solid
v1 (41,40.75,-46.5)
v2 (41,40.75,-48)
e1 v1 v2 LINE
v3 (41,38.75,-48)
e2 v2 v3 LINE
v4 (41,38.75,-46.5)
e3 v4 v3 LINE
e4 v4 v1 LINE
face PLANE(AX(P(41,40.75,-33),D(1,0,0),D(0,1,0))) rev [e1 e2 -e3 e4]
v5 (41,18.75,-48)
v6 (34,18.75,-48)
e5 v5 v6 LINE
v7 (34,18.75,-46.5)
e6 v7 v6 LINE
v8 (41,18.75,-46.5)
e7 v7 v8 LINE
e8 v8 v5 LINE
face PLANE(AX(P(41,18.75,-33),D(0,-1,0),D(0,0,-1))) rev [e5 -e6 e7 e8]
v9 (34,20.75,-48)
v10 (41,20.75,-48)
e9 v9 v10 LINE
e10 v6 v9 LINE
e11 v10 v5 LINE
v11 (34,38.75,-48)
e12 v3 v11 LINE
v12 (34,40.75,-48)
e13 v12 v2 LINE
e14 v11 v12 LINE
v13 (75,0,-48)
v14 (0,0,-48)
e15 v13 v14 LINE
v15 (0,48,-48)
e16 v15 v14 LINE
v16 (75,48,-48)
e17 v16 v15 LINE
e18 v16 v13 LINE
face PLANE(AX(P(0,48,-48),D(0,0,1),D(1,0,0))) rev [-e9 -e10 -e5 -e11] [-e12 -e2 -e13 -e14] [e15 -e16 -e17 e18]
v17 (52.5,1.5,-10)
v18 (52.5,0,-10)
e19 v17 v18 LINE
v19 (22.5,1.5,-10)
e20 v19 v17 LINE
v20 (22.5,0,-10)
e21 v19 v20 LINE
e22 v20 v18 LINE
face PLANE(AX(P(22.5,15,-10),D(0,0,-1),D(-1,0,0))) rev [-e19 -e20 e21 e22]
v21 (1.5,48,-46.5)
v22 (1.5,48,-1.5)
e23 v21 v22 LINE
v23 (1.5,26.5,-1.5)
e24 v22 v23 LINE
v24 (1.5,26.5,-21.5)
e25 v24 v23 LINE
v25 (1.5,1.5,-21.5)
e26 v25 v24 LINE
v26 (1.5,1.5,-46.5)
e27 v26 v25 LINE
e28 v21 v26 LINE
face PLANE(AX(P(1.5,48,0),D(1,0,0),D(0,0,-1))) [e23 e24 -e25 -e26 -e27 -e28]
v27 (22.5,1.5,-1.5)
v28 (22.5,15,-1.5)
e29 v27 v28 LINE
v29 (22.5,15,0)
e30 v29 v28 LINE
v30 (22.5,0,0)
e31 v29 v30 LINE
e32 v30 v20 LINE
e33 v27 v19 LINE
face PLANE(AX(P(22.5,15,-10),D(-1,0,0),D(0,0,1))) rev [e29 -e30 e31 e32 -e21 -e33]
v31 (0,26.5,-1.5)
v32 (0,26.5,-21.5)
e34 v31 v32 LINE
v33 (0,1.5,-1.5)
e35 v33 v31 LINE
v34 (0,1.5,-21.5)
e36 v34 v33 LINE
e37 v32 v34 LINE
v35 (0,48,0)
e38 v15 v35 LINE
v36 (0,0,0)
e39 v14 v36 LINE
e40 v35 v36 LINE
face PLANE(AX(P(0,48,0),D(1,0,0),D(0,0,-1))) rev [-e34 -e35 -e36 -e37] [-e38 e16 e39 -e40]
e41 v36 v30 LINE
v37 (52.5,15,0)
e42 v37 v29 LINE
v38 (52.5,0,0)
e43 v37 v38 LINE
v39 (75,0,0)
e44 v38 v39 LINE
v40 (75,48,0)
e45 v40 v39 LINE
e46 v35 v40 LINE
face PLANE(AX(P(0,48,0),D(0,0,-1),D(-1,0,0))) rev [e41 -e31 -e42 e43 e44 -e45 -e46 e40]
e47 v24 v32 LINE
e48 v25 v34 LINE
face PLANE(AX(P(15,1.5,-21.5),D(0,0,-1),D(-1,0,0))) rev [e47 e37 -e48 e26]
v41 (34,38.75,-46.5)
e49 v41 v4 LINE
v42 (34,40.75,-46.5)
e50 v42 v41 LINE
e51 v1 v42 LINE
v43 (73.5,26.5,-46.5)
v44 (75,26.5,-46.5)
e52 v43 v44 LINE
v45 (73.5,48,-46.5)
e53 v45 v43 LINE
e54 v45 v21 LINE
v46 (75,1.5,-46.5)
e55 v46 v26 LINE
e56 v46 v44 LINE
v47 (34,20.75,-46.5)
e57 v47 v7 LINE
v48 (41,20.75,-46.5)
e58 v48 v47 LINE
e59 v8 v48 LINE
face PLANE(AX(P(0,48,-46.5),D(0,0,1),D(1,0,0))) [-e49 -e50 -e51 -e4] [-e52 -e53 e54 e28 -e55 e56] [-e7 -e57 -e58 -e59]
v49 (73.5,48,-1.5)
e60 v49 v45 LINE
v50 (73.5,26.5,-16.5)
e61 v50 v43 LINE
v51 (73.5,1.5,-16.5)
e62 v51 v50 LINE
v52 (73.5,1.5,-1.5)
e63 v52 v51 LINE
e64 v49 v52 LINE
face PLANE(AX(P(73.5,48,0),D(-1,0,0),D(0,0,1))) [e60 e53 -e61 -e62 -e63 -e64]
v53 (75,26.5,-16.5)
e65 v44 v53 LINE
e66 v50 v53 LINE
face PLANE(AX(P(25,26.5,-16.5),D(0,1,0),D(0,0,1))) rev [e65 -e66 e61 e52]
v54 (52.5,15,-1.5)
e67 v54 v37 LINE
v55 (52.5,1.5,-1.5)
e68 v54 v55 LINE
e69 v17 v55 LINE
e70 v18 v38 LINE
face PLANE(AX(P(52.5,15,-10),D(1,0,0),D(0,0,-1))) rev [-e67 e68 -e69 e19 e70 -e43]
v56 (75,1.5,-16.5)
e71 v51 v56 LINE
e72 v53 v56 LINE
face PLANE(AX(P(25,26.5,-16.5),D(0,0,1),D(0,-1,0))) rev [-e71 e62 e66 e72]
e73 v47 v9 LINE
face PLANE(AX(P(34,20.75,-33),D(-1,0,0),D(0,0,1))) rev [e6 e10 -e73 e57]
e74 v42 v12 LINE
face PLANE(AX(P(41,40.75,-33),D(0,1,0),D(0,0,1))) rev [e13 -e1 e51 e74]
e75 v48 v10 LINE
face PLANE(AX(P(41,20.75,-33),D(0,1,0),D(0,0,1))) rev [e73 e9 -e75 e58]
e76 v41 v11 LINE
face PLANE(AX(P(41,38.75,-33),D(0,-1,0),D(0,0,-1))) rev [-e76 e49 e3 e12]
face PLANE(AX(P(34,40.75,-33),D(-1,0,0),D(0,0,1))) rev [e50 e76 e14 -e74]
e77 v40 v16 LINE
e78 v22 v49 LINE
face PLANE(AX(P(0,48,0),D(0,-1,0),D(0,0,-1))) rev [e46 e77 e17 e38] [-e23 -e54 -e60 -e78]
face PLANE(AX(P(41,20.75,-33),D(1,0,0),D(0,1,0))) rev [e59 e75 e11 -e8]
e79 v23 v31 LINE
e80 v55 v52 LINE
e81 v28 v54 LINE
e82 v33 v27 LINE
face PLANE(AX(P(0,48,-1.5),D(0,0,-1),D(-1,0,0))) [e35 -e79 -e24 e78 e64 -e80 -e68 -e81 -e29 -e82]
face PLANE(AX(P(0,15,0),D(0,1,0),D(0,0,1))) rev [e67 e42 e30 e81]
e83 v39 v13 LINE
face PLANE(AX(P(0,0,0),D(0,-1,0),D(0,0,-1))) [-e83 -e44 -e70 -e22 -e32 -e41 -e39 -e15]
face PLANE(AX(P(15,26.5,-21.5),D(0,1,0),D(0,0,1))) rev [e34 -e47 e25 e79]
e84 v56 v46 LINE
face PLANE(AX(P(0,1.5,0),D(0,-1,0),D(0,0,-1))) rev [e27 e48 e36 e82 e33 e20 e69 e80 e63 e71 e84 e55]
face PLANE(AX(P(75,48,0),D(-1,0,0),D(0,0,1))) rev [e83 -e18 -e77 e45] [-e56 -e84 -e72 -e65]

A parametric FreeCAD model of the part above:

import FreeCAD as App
import Part
import Sketcher
from FreeCAD import Vector


def faces_at(feature, points):
    """Names of the faces that lie closest to the given points."""
    faces = feature.Shape.Faces
    near = lambda p: min(range(len(faces)), key=lambda i: faces[i].distToShape(Part.Vertex(*p))[0])
    return sorted({f"Face{near(p) + 1}" for p in points})

doc = App.newDocument("Part")
body = doc.addObject("PartDesign::Body", "Body")

sketch1 = body.newObject("Sketcher::SketchObject", "Sketch")
sketch1.AttachmentSupport = (doc.getObject("XZ_Plane"), [""])
sketch1.MapMode = "FlatFace"
sketch1.addGeometry(Part.LineSegment(Vector(0, -48, 0), Vector(0, 0, 0)), False)
sketch1.addGeometry(Part.LineSegment(Vector(0, 0, 0), Vector(75, 0, 0)), False)
sketch1.addGeometry(Part.LineSegment(Vector(75, 0, 0), Vector(75, -48, 0)), False)
sketch1.addGeometry(Part.LineSegment(Vector(75, -48, 0), Vector(0, -48, 0)), False)
sketch1.addConstraint(Sketcher.Constraint("Coincident", 0, 2, 1, 1))
sketch1.addConstraint(Sketcher.Constraint("Coincident", 1, 2, 2, 1))
sketch1.addConstraint(Sketcher.Constraint("Coincident", 2, 2, 3, 1))
sketch1.addConstraint(Sketcher.Constraint("Coincident", 3, 2, 0, 1))
sketch1.addConstraint(Sketcher.Constraint("Vertical", 0))
sketch1.addConstraint(Sketcher.Constraint("Horizontal", 1))
sketch1.addConstraint(Sketcher.Constraint("Vertical", 2))
sketch1.addConstraint(Sketcher.Constraint("Horizontal", 3))
sketch1.addConstraint(Sketcher.Constraint("Coincident", 0, 2, -1, 1))
sketch1.addConstraint(Sketcher.Constraint("DistanceX", 1, 1, 1, 2, 75.0))
sketch1.addConstraint(Sketcher.Constraint("DistanceY", 0, 1, 0, 2, 48.0))
pad1 = body.newObject("PartDesign::Pad", "Pad")
pad1.Profile = sketch1
pad1.Length = 48
pad1.Reversed = True
doc.recompute()

thickness = body.newObject("PartDesign::Thickness", "Thickness")
thickness.Base = (pad1, faces_at(pad1, [(37.5, 48, -24)]))
thickness.Value = 1.5
thickness.Reversed = True
thickness.Join = "Intersection"

sketch2 = body.newObject("Sketcher::SketchObject", "Sketch001")
sketch2.AttachmentSupport = (doc.getObject("YZ_Plane"), [""])
sketch2.MapMode = "FlatFace"
sketch2.AttachmentOffset = App.Placement(Vector(0, 0, 75), App.Rotation())
sketch2.addGeometry(Part.LineSegment(Vector(26, -16, 0), Vector(2, -16, 0)), False)
sketch2.addGeometry(Part.LineSegment(Vector(2, -16, 0), Vector(2, -46, 0)), False)
sketch2.addGeometry(Part.LineSegment(Vector(2, -46, 0), Vector(26, -46, 0)), False)
sketch2.addGeometry(Part.LineSegment(Vector(26, -46, 0), Vector(26, -16, 0)), False)
sketch2.addConstraint(Sketcher.Constraint("Coincident", 0, 2, 1, 1))
sketch2.addConstraint(Sketcher.Constraint("Coincident", 1, 2, 2, 1))
sketch2.addConstraint(Sketcher.Constraint("Coincident", 2, 2, 3, 1))
sketch2.addConstraint(Sketcher.Constraint("Coincident", 3, 2, 0, 1))
sketch2.addConstraint(Sketcher.Constraint("Horizontal", 0))
sketch2.addConstraint(Sketcher.Constraint("Vertical", 1))
sketch2.addConstraint(Sketcher.Constraint("Horizontal", 2))
sketch2.addConstraint(Sketcher.Constraint("Vertical", 3))
sketch2.addConstraint(Sketcher.Constraint("DistanceX", 0, 2, 0, 1, 25.0))
sketch2.addConstraint(Sketcher.Constraint("DistanceY", 1, 2, 1, 1, 30.0))
sketch2.addConstraint(Sketcher.Constraint("DistanceX", -1, 1, 0, 2, 1.5))
sketch2.addConstraint(Sketcher.Constraint("DistanceY", 0, 2, -1, 1, 16.5))
pocket1 = body.newObject("PartDesign::Pocket", "Pocket")
pocket1.Profile = sketch2
pocket1.Length = 50

sketch3 = body.newObject("Sketcher::SketchObject", "Sketch002")
sketch3.AttachmentSupport = (doc.getObject("XZ_Plane"), [""])
sketch3.MapMode = "FlatFace"
sketch3.addGeometry(Part.LineSegment(Vector(22, 0, 0), Vector(22, -10, 0)), False)
sketch3.addGeometry(Part.LineSegment(Vector(22, -10, 0), Vector(52, -10, 0)), False)
sketch3.addGeometry(Part.LineSegment(Vector(52, -10, 0), Vector(52, 0, 0)), False)
sketch3.addGeometry(Part.LineSegment(Vector(52, 0, 0), Vector(22, 0, 0)), False)
sketch3.addConstraint(Sketcher.Constraint("Coincident", 0, 2, 1, 1))
sketch3.addConstraint(Sketcher.Constraint("Coincident", 1, 2, 2, 1))
sketch3.addConstraint(Sketcher.Constraint("Coincident", 2, 2, 3, 1))
sketch3.addConstraint(Sketcher.Constraint("Coincident", 3, 2, 0, 1))
sketch3.addConstraint(Sketcher.Constraint("Vertical", 0))
sketch3.addConstraint(Sketcher.Constraint("Horizontal", 1))
sketch3.addConstraint(Sketcher.Constraint("Vertical", 2))
sketch3.addConstraint(Sketcher.Constraint("Horizontal", 3))
sketch3.addConstraint(Sketcher.Constraint("PointOnObject", 2, 2, -1))
sketch3.addConstraint(Sketcher.Constraint("DistanceX", 1, 1, 1, 2, 30.0))
sketch3.addConstraint(Sketcher.Constraint("DistanceY", 0, 2, 0, 1, 10.0))
sketch3.addConstraint(Sketcher.Constraint("DistanceX", -1, 1, 0, 2, 22.5))
pocket2 = body.newObject("PartDesign::Pocket", "Pocket001")
pocket2.Profile = sketch3
pocket2.Length = 15

sketch4 = body.newObject("Sketcher::SketchObject", "Sketch003")
sketch4.AttachmentSupport = (doc.getObject("YZ_Plane"), [""])
sketch4.MapMode = "FlatFace"
sketch4.addGeometry(Part.LineSegment(Vector(26, -22, 0), Vector(2, -22, 0)), False)
sketch4.addGeometry(Part.LineSegment(Vector(2, -22, 0), Vector(2, -2, 0)), False)
sketch4.addGeometry(Part.LineSegment(Vector(2, -2, 0), Vector(26, -2, 0)), False)
sketch4.addGeometry(Part.LineSegment(Vector(26, -2, 0), Vector(26, -22, 0)), False)
sketch4.addConstraint(Sketcher.Constraint("Coincident", 0, 2, 1, 1))
sketch4.addConstraint(Sketcher.Constraint("Coincident", 1, 2, 2, 1))
sketch4.addConstraint(Sketcher.Constraint("Coincident", 2, 2, 3, 1))
sketch4.addConstraint(Sketcher.Constraint("Coincident", 3, 2, 0, 1))
sketch4.addConstraint(Sketcher.Constraint("Horizontal", 0))
sketch4.addConstraint(Sketcher.Constraint("Vertical", 1))
sketch4.addConstraint(Sketcher.Constraint("Horizontal", 2))
sketch4.addConstraint(Sketcher.Constraint("Vertical", 3))
sketch4.addConstraint(Sketcher.Constraint("DistanceX", 0, 2, 0, 1, 25.0))
sketch4.addConstraint(Sketcher.Constraint("DistanceY", 1, 1, 1, 2, 20.0))
sketch4.addConstraint(Sketcher.Constraint("DistanceX", -1, 1, 0, 2, 1.5))
sketch4.addConstraint(Sketcher.Constraint("DistanceY", 0, 2, -1, 1, 21.5))
pocket3 = body.newObject("PartDesign::Pocket", "Pocket002")
pocket3.Profile = sketch4
pocket3.Length = 15
pocket3.Reversed = True

sketch5 = body.newObject("Sketcher::SketchObject", "Sketch004")
sketch5.AttachmentSupport = (doc.getObject("XY_Plane"), [""])
sketch5.MapMode = "FlatFace"
sketch5.AttachmentOffset = App.Placement(Vector(0, 0, -48), App.Rotation())
sketch5.addGeometry(Part.LineSegment(Vector(41, 20.8, 0), Vector(41, 18.8, 0)), False)
sketch5.addGeometry(Part.LineSegment(Vector(41, 18.8, 0), Vector(34, 18.8, 0)), False)
sketch5.addGeometry(Part.LineSegment(Vector(34, 18.8, 0), Vector(34, 20.8, 0)), False)
sketch5.addGeometry(Part.LineSegment(Vector(34, 20.8, 0), Vector(41, 20.8, 0)), False)
sketch5.addGeometry(Part.LineSegment(Vector(41, 40.8, 0), Vector(41, 38.8, 0)), False)
sketch5.addGeometry(Part.LineSegment(Vector(41, 38.8, 0), Vector(34, 38.8, 0)), False)
sketch5.addGeometry(Part.LineSegment(Vector(34, 38.8, 0), Vector(34, 40.8, 0)), False)
sketch5.addGeometry(Part.LineSegment(Vector(34, 40.8, 0), Vector(41, 40.8, 0)), False)
sketch5.addConstraint(Sketcher.Constraint("Coincident", 0, 2, 1, 1))
sketch5.addConstraint(Sketcher.Constraint("Coincident", 1, 2, 2, 1))
sketch5.addConstraint(Sketcher.Constraint("Coincident", 2, 2, 3, 1))
sketch5.addConstraint(Sketcher.Constraint("Coincident", 3, 2, 0, 1))
sketch5.addConstraint(Sketcher.Constraint("Coincident", 4, 2, 5, 1))
sketch5.addConstraint(Sketcher.Constraint("Coincident", 5, 2, 6, 1))
sketch5.addConstraint(Sketcher.Constraint("Coincident", 6, 2, 7, 1))
sketch5.addConstraint(Sketcher.Constraint("Coincident", 7, 2, 4, 1))
sketch5.addConstraint(Sketcher.Constraint("Vertical", 0))
sketch5.addConstraint(Sketcher.Constraint("Horizontal", 1))
sketch5.addConstraint(Sketcher.Constraint("Vertical", 2))
sketch5.addConstraint(Sketcher.Constraint("Horizontal", 3))
sketch5.addConstraint(Sketcher.Constraint("Vertical", 4))
sketch5.addConstraint(Sketcher.Constraint("Horizontal", 5))
sketch5.addConstraint(Sketcher.Constraint("Vertical", 6))
sketch5.addConstraint(Sketcher.Constraint("Horizontal", 7))
sketch5.addConstraint(Sketcher.Constraint("Vertical", 3, 2, 4, 2))
sketch5.addConstraint(Sketcher.Constraint("Vertical", 2, 2, 5, 2))
sketch5.addConstraint(Sketcher.Constraint("Equal", 2, 4))
sketch5.addConstraint(Sketcher.Constraint("DistanceX", 1, 2, 1, 1, 7.0))
sketch5.addConstraint(Sketcher.Constraint("DistanceY", 0, 2, 0, 1, 2.0))
sketch5.addConstraint(Sketcher.Constraint("DistanceX", -1, 1, 0, 2, 41.0))
sketch5.addConstraint(Sketcher.Constraint("DistanceY", 3, 2, 4, 2, 18.0))
sketch5.addConstraint(Sketcher.Constraint("DistanceY", -1, 1, 0, 2, 18.75))
pocket4 = body.newObject("PartDesign::Pocket", "Pocket003")
pocket4.Profile = sketch5
pocket4.Length = 15
pocket4.Reversed = True

doc.recompute()
